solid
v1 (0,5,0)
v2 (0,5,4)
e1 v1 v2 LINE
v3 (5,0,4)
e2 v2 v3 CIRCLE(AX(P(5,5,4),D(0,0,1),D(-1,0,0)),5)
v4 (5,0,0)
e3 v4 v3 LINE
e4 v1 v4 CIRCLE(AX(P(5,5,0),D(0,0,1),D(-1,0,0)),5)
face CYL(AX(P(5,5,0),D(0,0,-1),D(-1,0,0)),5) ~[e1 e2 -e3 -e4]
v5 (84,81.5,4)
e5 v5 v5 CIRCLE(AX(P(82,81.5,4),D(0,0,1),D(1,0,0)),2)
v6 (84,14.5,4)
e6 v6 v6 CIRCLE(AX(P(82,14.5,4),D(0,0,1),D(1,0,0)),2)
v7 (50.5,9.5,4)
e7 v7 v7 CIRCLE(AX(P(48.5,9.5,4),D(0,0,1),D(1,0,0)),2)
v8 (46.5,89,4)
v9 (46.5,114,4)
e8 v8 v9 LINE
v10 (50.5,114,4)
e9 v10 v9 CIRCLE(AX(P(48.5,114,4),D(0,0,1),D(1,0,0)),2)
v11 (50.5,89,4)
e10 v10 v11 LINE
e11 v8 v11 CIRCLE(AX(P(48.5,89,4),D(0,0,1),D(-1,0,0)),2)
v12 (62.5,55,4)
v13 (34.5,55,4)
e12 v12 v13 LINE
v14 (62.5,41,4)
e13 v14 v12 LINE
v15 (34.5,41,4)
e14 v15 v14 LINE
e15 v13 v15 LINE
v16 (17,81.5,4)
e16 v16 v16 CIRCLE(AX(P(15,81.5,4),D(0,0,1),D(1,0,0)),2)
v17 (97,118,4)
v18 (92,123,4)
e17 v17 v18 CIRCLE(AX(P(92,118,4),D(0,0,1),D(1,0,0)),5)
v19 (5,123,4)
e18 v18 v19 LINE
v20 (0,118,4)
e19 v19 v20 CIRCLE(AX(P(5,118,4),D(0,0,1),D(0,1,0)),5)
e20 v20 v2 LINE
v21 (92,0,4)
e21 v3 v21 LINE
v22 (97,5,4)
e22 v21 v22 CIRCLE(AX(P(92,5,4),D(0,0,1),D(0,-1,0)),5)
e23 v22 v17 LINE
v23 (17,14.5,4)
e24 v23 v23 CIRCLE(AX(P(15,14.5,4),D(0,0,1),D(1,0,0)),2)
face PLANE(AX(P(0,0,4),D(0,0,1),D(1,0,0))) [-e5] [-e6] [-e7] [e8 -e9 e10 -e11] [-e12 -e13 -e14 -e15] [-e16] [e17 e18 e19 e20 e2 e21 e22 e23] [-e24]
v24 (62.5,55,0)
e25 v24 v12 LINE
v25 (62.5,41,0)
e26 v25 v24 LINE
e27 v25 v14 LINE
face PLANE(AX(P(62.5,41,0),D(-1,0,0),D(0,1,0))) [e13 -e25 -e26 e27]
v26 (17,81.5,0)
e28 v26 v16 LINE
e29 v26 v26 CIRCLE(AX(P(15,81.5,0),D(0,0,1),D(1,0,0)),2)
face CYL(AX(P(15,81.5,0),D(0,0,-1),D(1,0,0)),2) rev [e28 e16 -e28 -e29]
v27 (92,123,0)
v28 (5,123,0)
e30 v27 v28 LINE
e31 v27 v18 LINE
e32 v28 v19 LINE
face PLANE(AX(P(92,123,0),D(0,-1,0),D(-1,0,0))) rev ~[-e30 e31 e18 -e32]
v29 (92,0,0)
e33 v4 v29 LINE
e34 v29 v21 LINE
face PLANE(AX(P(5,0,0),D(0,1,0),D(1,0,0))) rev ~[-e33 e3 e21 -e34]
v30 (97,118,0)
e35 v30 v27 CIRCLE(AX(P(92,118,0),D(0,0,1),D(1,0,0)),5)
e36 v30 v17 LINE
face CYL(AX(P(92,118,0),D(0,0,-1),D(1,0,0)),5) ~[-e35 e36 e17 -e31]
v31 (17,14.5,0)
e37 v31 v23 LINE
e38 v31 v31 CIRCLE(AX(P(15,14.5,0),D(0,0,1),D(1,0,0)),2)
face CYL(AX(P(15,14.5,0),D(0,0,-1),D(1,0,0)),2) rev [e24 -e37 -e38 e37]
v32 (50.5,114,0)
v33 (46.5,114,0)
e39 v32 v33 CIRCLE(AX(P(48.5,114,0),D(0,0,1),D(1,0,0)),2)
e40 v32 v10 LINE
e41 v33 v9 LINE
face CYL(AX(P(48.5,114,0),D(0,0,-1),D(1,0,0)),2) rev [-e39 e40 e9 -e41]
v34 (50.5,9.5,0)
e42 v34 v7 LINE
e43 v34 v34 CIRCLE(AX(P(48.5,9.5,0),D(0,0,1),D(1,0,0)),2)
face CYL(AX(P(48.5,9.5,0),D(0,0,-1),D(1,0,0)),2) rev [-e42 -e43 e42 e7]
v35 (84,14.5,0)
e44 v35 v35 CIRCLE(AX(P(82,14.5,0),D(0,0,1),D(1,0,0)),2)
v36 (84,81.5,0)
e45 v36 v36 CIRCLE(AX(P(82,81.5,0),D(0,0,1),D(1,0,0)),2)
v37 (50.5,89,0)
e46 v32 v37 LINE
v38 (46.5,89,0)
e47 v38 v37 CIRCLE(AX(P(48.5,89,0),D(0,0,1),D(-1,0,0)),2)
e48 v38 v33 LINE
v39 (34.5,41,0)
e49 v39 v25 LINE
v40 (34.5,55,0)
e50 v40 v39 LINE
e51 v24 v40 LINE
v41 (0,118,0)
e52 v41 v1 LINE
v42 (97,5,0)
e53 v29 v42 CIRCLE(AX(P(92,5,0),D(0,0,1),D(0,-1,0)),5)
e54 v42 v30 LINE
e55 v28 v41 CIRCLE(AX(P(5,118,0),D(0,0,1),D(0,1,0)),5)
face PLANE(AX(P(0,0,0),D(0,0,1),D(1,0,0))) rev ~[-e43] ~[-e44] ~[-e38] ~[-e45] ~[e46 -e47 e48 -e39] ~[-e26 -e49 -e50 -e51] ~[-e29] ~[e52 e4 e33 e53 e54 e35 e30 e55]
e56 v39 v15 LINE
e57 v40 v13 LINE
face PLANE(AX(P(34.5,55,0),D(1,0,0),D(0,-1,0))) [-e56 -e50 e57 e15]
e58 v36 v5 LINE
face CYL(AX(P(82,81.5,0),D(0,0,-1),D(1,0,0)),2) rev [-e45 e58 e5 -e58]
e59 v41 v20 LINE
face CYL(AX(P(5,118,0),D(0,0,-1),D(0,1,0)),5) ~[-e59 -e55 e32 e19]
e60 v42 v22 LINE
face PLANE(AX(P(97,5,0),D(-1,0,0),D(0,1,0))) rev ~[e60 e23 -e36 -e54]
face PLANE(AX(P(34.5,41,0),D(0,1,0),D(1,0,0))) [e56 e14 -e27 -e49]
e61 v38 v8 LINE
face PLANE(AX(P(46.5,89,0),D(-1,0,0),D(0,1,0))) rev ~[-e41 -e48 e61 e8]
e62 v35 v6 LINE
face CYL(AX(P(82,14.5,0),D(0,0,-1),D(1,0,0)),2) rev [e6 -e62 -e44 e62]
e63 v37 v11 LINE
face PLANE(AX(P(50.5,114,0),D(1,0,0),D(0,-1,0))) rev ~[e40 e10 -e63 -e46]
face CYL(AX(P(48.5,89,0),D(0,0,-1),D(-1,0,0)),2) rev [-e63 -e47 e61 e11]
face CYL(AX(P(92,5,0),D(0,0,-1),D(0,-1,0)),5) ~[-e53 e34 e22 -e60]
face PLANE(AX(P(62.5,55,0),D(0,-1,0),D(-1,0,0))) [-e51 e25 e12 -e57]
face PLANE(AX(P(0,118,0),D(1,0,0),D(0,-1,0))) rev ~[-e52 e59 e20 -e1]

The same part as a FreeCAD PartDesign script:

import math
import FreeCAD as App
import Part
import Sketcher
from FreeCAD import Vector
Q = App.Units.Quantity


def add_polygon(sketch, points):
    """Adds a closed chain of lines whose ends are joined by coincident constraints."""
    first, n = sketch.GeometryCount, len(points)
    for a, b in zip(points, points[1:] + points[:1]):
        sketch.addGeometry(Part.LineSegment(App.Vector(*a, 0), App.Vector(*b, 0)), False)
    for i in range(n):
        sketch.addConstraint(Sketcher.Constraint("Coincident", first + i, 2, first + (i + 1) % n, 1))

doc = App.newDocument("Part")
body = doc.addObject("PartDesign::Body", "Body")

# Sketch on XY plane
sketch1 = doc.addObject("Sketcher::SketchObject", "Sketch")
body.addObject(sketch1)
sketch1.AttachmentSupport = (doc.XY_Plane, [""])
sketch1.MapMode = "FlatFace"
sketch1.addGeometry(Part.ArcOfCircle(Part.Circle(Vector(5, 5, 0), Vector(0, 0, 1), 5), math.radians(180), math.radians(270)), False)  # 0
sketch1.addGeometry(Part.LineSegment(Vector(5, 0, 0), Vector(92, 0, 0)), False)  # 1
sketch1.addGeometry(Part.ArcOfCircle(Part.Circle(Vector(92, 5, 0), Vector(0, 0, 1), 5), math.radians(-90), math.radians(0)), False)  # 2
sketch1.addGeometry(Part.LineSegment(Vector(97, 5, 0), Vector(97, 118, 0)), False)  # 3
sketch1.addGeometry(Part.ArcOfCircle(Part.Circle(Vector(92, 118, 0), Vector(0, 0, 1), 5), math.radians(0), math.radians(90)), False)  # 4
sketch1.addGeometry(Part.LineSegment(Vector(92, 123, 0), Vector(5, 123, 0)), False)  # 5
sketch1.addGeometry(Part.ArcOfCircle(Part.Circle(Vector(5, 118, 0), Vector(0, 0, 1), 5), math.radians(90), math.radians(180)), False)  # 6
sketch1.addGeometry(Part.LineSegment(Vector(0, 118, 0), Vector(0, 5, 0)), False)  # 7
sketch1.addGeometry(Part.Circle(Vector(15, 14.5, 0), Vector(0, 0, 1), 2), False)  # 8
sketch1.addGeometry(Part.Circle(Vector(48.5, 9.5, 0), Vector(0, 0, 1), 2), False)  # 9
sketch1.addGeometry(Part.Circle(Vector(82, 14.5, 0), Vector(0, 0, 1), 2), False)  # 10
add_polygon(sketch1, [(62.5, 41), (34.5, 41), (34.5, 55), (62.5, 55)])  # lines 11-14
sketch1.addGeometry(Part.Circle(Vector(15, 81.5, 0), Vector(0, 0, 1), 2), False)  # 15
sketch1.addGeometry(Part.Circle(Vector(82, 81.5, 0), Vector(0, 0, 1), 2), False)  # 16
sketch1.addGeometry(Part.ArcOfCircle(Part.Circle(Vector(48.5, 89, 0), Vector(0, 0, 1), 2), math.radians(180), math.radians(360)), False)  # 17
sketch1.addGeometry(Part.LineSegment(Vector(46.5, 89, 0), Vector(46.5, 114, 0)), False)  # 18
sketch1.addGeometry(Part.ArcOfCircle(Part.Circle(Vector(48.5, 114, 0), Vector(0, 0, 1), 2), math.radians(0), math.radians(180)), False)  # 19
sketch1.addGeometry(Part.LineSegment(Vector(50.5, 114, 0), Vector(50.5, 89, 0)), False)  # 20
sketch1.addConstraint([
    Sketcher.Constraint("Tangent", 0, 2, 1, 1),
    Sketcher.Constraint("Tangent", 1, 2, 2, 1),
    Sketcher.Constraint("Tangent", 2, 2, 3, 1),
    Sketcher.Constraint("Tangent", 3, 2, 4, 1),
    Sketcher.Constraint("Tangent", 4, 2, 5, 1),
    Sketcher.Constraint("Tangent", 5, 2, 6, 1),
    Sketcher.Constraint("Tangent", 6, 2, 7, 1),
    Sketcher.Constraint("Tangent", 7, 2, 0, 1),
    Sketcher.Constraint("Tangent", 17, 1, 18, 1),
    Sketcher.Constraint("Tangent", 18, 2, 19, 2),
    Sketcher.Constraint("Tangent", 19, 1, 20, 1),
    Sketcher.Constraint("Tangent", 20, 2, 17, 2),
    Sketcher.Constraint("Horizontal", 1),
    Sketcher.Constraint("Vertical", 3),
    Sketcher.Constraint("Horizontal", 5),
    Sketcher.Constraint("Vertical", 7),
    Sketcher.Constraint("Horizontal", 11),
    Sketcher.Constraint("Vertical", 12),
    Sketcher.Constraint("Horizontal", 13),
    Sketcher.Constraint("Vertical", 14),
    Sketcher.Constraint("Vertical", 18),
    Sketcher.Constraint("Vertical", 20),
    Sketcher.Constraint("Equal", 0, 2),
    Sketcher.Constraint("Equal", 2, 4),
    Sketcher.Constraint("Equal", 4, 6),
    Sketcher.Constraint("Equal", 8, 9),
    Sketcher.Constraint("Equal", 9, 10),
    Sketcher.Constraint("Equal", 10, 15),
    Sketcher.Constraint("Equal", 15, 16),
    Sketcher.Constraint("Equal", 16, 17),
    Sketcher.Constraint("PointOnObject", 0, 2, -1),
    Sketcher.Constraint("PointOnObject", 6, 2, -2),
    Sketcher.Constraint("Horizontal", 8, 3, 10, 3),
    Sketcher.Constraint("Horizontal", 15, 3, 16, 3),
    Sketcher.Constraint("Vertical", 8, 3, 15, 3),
    Sketcher.Constraint("Vertical", 10, 3, 16, 3),
    Sketcher.Constraint("Vertical", 9, 3, 17, 3),
    Sketcher.Constraint("Diameter", 8, Q("4 mm")),
    Sketcher.Constraint("Radius", 0, Q("5 mm")),
    Sketcher.Constraint("DistanceX", 11, 2, 11, 1, Q("28 mm")),
    Sketcher.Constraint("DistanceY", 12, 1, 12, 2, Q("14 mm")),
    Sketcher.Constraint("DistanceY", 9, 3, 8, 3, Q("5 mm")),
    Sketcher.Constraint("DistanceY", 19, 3, 4, 3, Q("4 mm")),
    Sketcher.Constraint("DistanceX", 11, 2, 9, 3, Q("14 mm")),
    Sketcher.Constraint("DistanceX", 1, 1, 1, 2, Q("87 mm")),
    Sketcher.Constraint("DistanceY", 3, 1, 3, 2, Q("113 mm")),
    Sketcher.Constraint("DistanceY", 18, 1, 18, 2, Q("25 mm")),
    Sketcher.Constraint("DistanceX", -1, 1, 8, 3, Q("15 mm")),
    Sketcher.Constraint("DistanceX", -1, 1, 10, 3, Q("82 mm")),
    Sketcher.Constraint("DistanceY", -1, 1, 11, 2, Q("41 mm")),
    Sketcher.Constraint("DistanceY", 8, 3, 15, 3, Q("67 mm")),
    Sketcher.Constraint("DistanceY", -1, 1, 8, 3, Q("14.5 mm")),
    Sketcher.Constraint("DistanceX", -1, 1, 9, 3, Q("48.5 mm")),
])
pad1 = doc.addObject("PartDesign::Pad", "Pad")
body.addObject(pad1)
pad1.Profile = sketch1
pad1.Length = 4

doc.recompute()
